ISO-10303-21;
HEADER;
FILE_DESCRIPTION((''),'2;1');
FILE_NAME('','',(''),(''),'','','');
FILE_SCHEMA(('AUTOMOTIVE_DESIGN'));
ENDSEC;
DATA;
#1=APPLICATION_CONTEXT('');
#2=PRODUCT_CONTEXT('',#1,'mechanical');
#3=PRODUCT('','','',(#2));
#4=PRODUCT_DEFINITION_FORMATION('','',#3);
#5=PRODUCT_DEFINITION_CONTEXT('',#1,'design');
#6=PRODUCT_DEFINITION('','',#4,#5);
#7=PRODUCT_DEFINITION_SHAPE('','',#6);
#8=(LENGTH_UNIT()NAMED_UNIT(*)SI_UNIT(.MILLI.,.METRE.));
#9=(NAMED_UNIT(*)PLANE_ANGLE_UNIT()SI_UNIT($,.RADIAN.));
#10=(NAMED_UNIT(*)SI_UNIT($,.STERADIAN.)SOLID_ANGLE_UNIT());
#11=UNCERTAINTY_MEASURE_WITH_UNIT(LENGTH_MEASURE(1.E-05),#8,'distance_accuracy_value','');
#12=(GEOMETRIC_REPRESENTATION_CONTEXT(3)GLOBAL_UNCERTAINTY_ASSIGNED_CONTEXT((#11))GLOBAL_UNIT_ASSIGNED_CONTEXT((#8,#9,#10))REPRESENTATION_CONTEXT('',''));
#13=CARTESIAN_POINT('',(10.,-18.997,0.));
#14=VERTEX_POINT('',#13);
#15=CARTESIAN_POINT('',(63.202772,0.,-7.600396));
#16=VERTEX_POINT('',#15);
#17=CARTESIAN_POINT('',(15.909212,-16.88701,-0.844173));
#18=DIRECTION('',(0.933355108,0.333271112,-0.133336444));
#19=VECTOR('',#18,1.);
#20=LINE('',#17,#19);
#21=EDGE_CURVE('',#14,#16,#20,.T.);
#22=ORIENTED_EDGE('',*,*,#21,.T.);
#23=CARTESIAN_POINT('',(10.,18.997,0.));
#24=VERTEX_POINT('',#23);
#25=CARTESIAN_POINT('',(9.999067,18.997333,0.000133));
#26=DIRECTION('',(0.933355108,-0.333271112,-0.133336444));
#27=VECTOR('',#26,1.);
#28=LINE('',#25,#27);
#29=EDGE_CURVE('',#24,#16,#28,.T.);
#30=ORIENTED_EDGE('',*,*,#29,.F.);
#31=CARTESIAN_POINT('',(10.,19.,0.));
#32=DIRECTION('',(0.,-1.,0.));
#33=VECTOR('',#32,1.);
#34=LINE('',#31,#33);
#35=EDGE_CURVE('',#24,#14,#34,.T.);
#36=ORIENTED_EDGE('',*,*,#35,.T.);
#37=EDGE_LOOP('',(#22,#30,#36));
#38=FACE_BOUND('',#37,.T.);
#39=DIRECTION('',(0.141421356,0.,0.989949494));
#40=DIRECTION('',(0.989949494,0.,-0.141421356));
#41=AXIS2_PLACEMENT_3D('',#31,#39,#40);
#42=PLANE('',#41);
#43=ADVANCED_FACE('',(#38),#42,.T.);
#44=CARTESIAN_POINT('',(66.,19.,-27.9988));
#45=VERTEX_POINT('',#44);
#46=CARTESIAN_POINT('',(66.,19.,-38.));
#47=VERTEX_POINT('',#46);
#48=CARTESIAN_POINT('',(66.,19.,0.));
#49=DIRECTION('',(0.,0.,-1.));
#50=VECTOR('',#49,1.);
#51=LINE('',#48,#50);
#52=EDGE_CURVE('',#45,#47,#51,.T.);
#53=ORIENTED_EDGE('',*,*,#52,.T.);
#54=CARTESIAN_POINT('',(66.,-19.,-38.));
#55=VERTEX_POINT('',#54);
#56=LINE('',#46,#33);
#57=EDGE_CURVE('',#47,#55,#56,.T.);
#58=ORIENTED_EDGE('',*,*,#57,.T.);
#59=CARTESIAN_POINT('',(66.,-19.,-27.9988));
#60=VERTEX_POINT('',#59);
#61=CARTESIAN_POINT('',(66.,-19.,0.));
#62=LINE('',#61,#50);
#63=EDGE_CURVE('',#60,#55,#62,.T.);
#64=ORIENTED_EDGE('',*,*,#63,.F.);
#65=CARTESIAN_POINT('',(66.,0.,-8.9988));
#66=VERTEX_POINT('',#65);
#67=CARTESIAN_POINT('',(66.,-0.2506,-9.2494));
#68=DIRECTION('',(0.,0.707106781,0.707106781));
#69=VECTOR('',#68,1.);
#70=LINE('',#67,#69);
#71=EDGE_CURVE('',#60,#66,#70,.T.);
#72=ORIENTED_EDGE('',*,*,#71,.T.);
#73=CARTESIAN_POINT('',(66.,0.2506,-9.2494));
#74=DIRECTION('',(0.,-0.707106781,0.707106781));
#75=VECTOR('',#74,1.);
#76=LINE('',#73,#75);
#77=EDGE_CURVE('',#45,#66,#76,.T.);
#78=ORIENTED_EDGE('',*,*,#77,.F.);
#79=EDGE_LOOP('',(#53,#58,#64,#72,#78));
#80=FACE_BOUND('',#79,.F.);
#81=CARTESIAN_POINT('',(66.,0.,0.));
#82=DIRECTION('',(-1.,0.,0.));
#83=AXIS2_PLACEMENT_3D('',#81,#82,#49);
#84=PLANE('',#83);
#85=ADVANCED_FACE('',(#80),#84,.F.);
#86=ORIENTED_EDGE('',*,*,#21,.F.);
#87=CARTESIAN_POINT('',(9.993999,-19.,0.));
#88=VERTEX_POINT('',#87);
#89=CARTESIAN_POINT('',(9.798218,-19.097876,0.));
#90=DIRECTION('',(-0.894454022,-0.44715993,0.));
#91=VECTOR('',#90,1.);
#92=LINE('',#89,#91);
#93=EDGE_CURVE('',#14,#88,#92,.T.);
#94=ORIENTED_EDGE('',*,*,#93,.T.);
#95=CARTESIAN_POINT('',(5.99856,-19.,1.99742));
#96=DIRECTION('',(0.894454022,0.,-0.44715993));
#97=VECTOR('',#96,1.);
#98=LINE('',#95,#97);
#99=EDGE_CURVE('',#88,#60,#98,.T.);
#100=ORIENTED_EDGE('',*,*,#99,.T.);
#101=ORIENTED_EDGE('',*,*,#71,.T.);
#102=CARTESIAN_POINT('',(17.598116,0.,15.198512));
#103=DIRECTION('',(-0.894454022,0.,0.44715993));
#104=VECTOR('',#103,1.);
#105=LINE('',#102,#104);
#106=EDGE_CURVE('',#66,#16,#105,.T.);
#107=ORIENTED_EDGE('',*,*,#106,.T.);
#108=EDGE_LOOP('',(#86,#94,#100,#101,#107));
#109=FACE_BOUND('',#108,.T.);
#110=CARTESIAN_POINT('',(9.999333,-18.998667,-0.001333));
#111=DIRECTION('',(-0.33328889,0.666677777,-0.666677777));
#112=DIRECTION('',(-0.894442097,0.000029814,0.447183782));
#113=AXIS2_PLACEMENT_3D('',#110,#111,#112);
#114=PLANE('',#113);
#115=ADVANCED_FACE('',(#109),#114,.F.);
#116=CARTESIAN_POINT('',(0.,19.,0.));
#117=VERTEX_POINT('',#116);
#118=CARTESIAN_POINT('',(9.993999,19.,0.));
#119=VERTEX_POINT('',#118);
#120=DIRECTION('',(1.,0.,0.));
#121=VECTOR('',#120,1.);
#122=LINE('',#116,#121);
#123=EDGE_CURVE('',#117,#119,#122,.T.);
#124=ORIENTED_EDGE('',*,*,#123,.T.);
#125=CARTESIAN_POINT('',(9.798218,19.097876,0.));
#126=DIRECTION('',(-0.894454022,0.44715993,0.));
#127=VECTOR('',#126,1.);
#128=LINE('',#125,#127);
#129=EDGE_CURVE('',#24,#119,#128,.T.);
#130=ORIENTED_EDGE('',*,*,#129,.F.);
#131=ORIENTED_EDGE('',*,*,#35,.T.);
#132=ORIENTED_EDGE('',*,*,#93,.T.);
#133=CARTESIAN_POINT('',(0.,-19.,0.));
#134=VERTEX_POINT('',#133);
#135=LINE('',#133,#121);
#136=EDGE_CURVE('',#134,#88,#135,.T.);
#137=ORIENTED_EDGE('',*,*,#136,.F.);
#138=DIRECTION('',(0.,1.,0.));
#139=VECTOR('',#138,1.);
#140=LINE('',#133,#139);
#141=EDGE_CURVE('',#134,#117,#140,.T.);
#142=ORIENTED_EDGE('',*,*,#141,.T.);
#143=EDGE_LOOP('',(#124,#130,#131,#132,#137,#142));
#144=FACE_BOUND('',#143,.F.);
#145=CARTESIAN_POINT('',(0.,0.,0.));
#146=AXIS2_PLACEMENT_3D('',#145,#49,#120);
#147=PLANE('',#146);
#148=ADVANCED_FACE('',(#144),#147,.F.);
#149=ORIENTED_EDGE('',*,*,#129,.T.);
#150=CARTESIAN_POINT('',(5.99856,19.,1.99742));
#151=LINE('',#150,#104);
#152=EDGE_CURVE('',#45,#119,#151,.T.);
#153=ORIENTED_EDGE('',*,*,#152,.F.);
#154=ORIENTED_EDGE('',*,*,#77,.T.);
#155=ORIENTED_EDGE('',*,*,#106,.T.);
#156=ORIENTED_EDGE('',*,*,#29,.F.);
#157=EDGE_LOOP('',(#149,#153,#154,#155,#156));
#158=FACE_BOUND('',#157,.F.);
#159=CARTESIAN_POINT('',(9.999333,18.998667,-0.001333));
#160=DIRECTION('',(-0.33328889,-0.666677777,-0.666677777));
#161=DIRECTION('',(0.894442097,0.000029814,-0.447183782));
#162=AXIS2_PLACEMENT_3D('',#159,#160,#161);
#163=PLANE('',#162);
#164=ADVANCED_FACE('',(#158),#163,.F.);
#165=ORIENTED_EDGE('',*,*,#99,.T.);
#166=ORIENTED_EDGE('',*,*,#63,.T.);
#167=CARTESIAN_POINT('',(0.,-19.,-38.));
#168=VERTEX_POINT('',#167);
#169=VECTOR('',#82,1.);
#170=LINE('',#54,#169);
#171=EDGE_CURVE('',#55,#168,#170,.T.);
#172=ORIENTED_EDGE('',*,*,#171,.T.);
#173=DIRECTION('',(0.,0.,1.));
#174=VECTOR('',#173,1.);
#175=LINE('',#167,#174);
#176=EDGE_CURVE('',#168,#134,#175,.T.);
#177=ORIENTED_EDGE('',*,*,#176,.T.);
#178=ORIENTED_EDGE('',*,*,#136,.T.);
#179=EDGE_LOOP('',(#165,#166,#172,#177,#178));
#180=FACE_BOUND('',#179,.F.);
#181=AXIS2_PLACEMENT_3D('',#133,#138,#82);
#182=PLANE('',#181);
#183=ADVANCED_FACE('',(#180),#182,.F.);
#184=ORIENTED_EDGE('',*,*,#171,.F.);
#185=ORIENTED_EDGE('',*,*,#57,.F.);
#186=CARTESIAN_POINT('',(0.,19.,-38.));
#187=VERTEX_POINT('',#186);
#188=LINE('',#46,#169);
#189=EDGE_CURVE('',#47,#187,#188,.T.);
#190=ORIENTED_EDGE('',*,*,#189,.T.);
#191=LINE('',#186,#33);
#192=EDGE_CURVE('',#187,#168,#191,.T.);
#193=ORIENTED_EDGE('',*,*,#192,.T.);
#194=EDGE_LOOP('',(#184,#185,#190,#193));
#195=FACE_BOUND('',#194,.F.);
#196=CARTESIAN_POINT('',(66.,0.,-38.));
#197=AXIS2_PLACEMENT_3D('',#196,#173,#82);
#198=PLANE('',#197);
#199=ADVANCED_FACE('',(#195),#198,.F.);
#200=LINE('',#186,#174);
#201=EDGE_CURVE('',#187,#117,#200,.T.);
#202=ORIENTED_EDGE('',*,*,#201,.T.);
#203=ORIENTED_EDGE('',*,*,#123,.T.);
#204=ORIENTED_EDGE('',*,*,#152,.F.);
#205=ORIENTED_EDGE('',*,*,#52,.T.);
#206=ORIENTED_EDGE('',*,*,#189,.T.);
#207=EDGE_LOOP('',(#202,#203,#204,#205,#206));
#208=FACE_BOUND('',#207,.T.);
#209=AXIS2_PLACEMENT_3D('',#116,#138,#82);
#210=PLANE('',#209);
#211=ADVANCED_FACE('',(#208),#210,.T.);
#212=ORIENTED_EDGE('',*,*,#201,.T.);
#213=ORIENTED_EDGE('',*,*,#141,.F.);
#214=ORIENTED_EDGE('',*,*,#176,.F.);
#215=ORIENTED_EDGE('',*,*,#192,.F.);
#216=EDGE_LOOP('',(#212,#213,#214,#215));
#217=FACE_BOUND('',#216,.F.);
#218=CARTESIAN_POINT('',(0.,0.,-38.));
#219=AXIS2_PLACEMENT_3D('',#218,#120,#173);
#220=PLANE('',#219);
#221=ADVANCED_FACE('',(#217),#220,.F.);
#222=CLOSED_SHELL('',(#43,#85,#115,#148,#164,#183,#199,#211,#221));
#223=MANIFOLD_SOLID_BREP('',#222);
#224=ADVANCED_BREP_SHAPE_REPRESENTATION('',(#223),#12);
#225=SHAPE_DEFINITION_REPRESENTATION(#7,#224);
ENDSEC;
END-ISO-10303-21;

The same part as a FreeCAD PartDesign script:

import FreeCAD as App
import Part
import Sketcher

doc = App.newDocument("Part")
body = doc.addObject("PartDesign::Body", "Body")

# Sketch on XZ plane
sketch1 = doc.addObject("Sketcher::SketchObject", "Sketch")
body.addObject(sketch1)
sketch1.AttachmentSupport = (doc.XZ_Plane, [""])
sketch1.MapMode = "FlatFace"
sketch1.addGeometry([
    Part.LineSegment(App.Vector(0, -38, 0), App.Vector(0, 0, 0)),
    Part.LineSegment(App.Vector(0, 0, 0), App.Vector(66, 0, 0)),
    Part.LineSegment(App.Vector(66, 0, 0), App.Vector(66, -38, 0)),
    Part.LineSegment(App.Vector(66, -38, 0), App.Vector(0, -38, 0)),
], False)
sketch1.addConstraint([
    Sketcher.Constraint("Coincident", 0, 2, 1, 1),
    Sketcher.Constraint("Coincident", 1, 2, 2, 1),
    Sketcher.Constraint("Coincident", 2, 2, 3, 1),
    Sketcher.Constraint("Coincident", 3, 2, 0, 1),
    Sketcher.Constraint("Vertical", 0),
    Sketcher.Constraint("Horizontal", 1),
    Sketcher.Constraint("Vertical", 2),
    Sketcher.Constraint("Horizontal", 3),
    Sketcher.Constraint("Coincident", 0, 2, -1, 1),
    Sketcher.Constraint("DistanceX", 1, 1, 1, 2, 66.0),
    Sketcher.Constraint("DistanceY", 0, 1, 0, 2, 38.0),
])
pad1 = doc.addObject("PartDesign::Pad", "Pad")
body.addObject(pad1)
pad1.Profile = sketch1
pad1.Length = 38
pad1.Midplane = True

# Sketch on XZ plane
sketch2 = doc.addObject("Sketcher::SketchObject", "Sketch001")
body.addObject(sketch2)
sketch2.AttachmentSupport = (doc.XZ_Plane, [""])
sketch2.MapMode = "FlatFace"
sketch2.AttachmentOffset = App.Placement(App.Vector(0, 0, -19), App.Rotation())
sketch2.addGeometry([
    Part.LineSegment(App.Vector(66, -8, 0), App.Vector(10, 0, 0)),
    Part.LineSegment(App.Vector(10, 0, 0), App.Vector(66, 0, 0)),
    Part.LineSegment(App.Vector(66, 0, 0), App.Vector(66, -8, 0)),
], False)
sketch2.addConstraint([
    Sketcher.Constraint("Coincident", 0, 2, 1, 1),
    Sketcher.Constraint("Coincident", 1, 2, 2, 1),
    Sketcher.Constraint("Coincident", 2, 2, 0, 1),
    Sketcher.Constraint("Horizontal", 1),
    Sketcher.Constraint("Vertical", 2),
    Sketcher.Constraint("PointOnObject", 0, 2, -1),
    Sketcher.Constraint("DistanceX", -1, 1, 0, 2, 10.0),
    Sketcher.Constraint("DistanceX", 1, 1, 1, 2, 56.0),
    Sketcher.Constraint("DistanceY", 2, 2, 2, 1, 8.0),
])
pocket1 = doc.addObject("PartDesign::Pocket", "Pocket")
body.addObject(pocket1)
pocket1.Profile = sketch2
pocket1.Length = 40
pocket1.Reversed = True

# Sketch on an angled plane
sketch3 = doc.addObject("Sketcher::SketchObject", "Sketch002")
body.addObject(sketch3)
sketch3.Placement = App.Placement(App.Vector(10, 19, 0), App.Rotation(App.Vector(0.894442097, 0.000029814, -0.447183782), App.Vector(0.298147366, -0.745346055, 0.596294732), App.Vector(-0.33328889, -0.666677777, -0.666677777), "ZXY"))
sketch3.addGeometry([
    Part.LineSegment(App.Vector(-15, 29, 0), App.Vector(-15, -12, 0)),
    Part.LineSegment(App.Vector(-15, -12, 0), App.Vector(94, -12, 0)),
    Part.LineSegment(App.Vector(94, -12, 0), App.Vector(94, 29, 0)),
    Part.LineSegment(App.Vector(94, 29, 0), App.Vector(-15, 29, 0)),
], False)
sketch3.addConstraint([
    Sketcher.Constraint("Coincident", 0, 2, 1, 1),
    Sketcher.Constraint("Coincident", 1, 2, 2, 1),
    Sketcher.Constraint("Coincident", 2, 2, 3, 1),
    Sketcher.Constraint("Coincident", 3, 2, 0, 1),
    Sketcher.Constraint("Vertical", 0),
    Sketcher.Constraint("Horizontal", 1),
    Sketcher.Constraint("Vertical", 2),
    Sketcher.Constraint("Horizontal", 3),
    Sketcher.Constraint("DistanceX", 1, 1, 1, 2, 108.8713),
    Sketcher.Constraint("DistanceY", 0, 2, 0, 1, 41.1384),
    Sketcher.Constraint("DistanceX", -1, 1, 1, 2, 93.717),
    Sketcher.Constraint("DistanceY", 0, 2, -1, 1, 12.3218),
])
pocket2 = doc.addObject("PartDesign::Pocket", "Pocket001")
body.addObject(pocket2)
pocket2.Profile = sketch3
pocket2.Length = 40
doc.recompute()

mirrored = doc.addObject("PartDesign::Mirrored", "Mirrored")
body.addObject(mirrored)
mirrored.Originals = [pocket2]
mirrored.MirrorPlane = (doc.XZ_Plane, [""])
body.Tip = mirrored

doc.recompute()
